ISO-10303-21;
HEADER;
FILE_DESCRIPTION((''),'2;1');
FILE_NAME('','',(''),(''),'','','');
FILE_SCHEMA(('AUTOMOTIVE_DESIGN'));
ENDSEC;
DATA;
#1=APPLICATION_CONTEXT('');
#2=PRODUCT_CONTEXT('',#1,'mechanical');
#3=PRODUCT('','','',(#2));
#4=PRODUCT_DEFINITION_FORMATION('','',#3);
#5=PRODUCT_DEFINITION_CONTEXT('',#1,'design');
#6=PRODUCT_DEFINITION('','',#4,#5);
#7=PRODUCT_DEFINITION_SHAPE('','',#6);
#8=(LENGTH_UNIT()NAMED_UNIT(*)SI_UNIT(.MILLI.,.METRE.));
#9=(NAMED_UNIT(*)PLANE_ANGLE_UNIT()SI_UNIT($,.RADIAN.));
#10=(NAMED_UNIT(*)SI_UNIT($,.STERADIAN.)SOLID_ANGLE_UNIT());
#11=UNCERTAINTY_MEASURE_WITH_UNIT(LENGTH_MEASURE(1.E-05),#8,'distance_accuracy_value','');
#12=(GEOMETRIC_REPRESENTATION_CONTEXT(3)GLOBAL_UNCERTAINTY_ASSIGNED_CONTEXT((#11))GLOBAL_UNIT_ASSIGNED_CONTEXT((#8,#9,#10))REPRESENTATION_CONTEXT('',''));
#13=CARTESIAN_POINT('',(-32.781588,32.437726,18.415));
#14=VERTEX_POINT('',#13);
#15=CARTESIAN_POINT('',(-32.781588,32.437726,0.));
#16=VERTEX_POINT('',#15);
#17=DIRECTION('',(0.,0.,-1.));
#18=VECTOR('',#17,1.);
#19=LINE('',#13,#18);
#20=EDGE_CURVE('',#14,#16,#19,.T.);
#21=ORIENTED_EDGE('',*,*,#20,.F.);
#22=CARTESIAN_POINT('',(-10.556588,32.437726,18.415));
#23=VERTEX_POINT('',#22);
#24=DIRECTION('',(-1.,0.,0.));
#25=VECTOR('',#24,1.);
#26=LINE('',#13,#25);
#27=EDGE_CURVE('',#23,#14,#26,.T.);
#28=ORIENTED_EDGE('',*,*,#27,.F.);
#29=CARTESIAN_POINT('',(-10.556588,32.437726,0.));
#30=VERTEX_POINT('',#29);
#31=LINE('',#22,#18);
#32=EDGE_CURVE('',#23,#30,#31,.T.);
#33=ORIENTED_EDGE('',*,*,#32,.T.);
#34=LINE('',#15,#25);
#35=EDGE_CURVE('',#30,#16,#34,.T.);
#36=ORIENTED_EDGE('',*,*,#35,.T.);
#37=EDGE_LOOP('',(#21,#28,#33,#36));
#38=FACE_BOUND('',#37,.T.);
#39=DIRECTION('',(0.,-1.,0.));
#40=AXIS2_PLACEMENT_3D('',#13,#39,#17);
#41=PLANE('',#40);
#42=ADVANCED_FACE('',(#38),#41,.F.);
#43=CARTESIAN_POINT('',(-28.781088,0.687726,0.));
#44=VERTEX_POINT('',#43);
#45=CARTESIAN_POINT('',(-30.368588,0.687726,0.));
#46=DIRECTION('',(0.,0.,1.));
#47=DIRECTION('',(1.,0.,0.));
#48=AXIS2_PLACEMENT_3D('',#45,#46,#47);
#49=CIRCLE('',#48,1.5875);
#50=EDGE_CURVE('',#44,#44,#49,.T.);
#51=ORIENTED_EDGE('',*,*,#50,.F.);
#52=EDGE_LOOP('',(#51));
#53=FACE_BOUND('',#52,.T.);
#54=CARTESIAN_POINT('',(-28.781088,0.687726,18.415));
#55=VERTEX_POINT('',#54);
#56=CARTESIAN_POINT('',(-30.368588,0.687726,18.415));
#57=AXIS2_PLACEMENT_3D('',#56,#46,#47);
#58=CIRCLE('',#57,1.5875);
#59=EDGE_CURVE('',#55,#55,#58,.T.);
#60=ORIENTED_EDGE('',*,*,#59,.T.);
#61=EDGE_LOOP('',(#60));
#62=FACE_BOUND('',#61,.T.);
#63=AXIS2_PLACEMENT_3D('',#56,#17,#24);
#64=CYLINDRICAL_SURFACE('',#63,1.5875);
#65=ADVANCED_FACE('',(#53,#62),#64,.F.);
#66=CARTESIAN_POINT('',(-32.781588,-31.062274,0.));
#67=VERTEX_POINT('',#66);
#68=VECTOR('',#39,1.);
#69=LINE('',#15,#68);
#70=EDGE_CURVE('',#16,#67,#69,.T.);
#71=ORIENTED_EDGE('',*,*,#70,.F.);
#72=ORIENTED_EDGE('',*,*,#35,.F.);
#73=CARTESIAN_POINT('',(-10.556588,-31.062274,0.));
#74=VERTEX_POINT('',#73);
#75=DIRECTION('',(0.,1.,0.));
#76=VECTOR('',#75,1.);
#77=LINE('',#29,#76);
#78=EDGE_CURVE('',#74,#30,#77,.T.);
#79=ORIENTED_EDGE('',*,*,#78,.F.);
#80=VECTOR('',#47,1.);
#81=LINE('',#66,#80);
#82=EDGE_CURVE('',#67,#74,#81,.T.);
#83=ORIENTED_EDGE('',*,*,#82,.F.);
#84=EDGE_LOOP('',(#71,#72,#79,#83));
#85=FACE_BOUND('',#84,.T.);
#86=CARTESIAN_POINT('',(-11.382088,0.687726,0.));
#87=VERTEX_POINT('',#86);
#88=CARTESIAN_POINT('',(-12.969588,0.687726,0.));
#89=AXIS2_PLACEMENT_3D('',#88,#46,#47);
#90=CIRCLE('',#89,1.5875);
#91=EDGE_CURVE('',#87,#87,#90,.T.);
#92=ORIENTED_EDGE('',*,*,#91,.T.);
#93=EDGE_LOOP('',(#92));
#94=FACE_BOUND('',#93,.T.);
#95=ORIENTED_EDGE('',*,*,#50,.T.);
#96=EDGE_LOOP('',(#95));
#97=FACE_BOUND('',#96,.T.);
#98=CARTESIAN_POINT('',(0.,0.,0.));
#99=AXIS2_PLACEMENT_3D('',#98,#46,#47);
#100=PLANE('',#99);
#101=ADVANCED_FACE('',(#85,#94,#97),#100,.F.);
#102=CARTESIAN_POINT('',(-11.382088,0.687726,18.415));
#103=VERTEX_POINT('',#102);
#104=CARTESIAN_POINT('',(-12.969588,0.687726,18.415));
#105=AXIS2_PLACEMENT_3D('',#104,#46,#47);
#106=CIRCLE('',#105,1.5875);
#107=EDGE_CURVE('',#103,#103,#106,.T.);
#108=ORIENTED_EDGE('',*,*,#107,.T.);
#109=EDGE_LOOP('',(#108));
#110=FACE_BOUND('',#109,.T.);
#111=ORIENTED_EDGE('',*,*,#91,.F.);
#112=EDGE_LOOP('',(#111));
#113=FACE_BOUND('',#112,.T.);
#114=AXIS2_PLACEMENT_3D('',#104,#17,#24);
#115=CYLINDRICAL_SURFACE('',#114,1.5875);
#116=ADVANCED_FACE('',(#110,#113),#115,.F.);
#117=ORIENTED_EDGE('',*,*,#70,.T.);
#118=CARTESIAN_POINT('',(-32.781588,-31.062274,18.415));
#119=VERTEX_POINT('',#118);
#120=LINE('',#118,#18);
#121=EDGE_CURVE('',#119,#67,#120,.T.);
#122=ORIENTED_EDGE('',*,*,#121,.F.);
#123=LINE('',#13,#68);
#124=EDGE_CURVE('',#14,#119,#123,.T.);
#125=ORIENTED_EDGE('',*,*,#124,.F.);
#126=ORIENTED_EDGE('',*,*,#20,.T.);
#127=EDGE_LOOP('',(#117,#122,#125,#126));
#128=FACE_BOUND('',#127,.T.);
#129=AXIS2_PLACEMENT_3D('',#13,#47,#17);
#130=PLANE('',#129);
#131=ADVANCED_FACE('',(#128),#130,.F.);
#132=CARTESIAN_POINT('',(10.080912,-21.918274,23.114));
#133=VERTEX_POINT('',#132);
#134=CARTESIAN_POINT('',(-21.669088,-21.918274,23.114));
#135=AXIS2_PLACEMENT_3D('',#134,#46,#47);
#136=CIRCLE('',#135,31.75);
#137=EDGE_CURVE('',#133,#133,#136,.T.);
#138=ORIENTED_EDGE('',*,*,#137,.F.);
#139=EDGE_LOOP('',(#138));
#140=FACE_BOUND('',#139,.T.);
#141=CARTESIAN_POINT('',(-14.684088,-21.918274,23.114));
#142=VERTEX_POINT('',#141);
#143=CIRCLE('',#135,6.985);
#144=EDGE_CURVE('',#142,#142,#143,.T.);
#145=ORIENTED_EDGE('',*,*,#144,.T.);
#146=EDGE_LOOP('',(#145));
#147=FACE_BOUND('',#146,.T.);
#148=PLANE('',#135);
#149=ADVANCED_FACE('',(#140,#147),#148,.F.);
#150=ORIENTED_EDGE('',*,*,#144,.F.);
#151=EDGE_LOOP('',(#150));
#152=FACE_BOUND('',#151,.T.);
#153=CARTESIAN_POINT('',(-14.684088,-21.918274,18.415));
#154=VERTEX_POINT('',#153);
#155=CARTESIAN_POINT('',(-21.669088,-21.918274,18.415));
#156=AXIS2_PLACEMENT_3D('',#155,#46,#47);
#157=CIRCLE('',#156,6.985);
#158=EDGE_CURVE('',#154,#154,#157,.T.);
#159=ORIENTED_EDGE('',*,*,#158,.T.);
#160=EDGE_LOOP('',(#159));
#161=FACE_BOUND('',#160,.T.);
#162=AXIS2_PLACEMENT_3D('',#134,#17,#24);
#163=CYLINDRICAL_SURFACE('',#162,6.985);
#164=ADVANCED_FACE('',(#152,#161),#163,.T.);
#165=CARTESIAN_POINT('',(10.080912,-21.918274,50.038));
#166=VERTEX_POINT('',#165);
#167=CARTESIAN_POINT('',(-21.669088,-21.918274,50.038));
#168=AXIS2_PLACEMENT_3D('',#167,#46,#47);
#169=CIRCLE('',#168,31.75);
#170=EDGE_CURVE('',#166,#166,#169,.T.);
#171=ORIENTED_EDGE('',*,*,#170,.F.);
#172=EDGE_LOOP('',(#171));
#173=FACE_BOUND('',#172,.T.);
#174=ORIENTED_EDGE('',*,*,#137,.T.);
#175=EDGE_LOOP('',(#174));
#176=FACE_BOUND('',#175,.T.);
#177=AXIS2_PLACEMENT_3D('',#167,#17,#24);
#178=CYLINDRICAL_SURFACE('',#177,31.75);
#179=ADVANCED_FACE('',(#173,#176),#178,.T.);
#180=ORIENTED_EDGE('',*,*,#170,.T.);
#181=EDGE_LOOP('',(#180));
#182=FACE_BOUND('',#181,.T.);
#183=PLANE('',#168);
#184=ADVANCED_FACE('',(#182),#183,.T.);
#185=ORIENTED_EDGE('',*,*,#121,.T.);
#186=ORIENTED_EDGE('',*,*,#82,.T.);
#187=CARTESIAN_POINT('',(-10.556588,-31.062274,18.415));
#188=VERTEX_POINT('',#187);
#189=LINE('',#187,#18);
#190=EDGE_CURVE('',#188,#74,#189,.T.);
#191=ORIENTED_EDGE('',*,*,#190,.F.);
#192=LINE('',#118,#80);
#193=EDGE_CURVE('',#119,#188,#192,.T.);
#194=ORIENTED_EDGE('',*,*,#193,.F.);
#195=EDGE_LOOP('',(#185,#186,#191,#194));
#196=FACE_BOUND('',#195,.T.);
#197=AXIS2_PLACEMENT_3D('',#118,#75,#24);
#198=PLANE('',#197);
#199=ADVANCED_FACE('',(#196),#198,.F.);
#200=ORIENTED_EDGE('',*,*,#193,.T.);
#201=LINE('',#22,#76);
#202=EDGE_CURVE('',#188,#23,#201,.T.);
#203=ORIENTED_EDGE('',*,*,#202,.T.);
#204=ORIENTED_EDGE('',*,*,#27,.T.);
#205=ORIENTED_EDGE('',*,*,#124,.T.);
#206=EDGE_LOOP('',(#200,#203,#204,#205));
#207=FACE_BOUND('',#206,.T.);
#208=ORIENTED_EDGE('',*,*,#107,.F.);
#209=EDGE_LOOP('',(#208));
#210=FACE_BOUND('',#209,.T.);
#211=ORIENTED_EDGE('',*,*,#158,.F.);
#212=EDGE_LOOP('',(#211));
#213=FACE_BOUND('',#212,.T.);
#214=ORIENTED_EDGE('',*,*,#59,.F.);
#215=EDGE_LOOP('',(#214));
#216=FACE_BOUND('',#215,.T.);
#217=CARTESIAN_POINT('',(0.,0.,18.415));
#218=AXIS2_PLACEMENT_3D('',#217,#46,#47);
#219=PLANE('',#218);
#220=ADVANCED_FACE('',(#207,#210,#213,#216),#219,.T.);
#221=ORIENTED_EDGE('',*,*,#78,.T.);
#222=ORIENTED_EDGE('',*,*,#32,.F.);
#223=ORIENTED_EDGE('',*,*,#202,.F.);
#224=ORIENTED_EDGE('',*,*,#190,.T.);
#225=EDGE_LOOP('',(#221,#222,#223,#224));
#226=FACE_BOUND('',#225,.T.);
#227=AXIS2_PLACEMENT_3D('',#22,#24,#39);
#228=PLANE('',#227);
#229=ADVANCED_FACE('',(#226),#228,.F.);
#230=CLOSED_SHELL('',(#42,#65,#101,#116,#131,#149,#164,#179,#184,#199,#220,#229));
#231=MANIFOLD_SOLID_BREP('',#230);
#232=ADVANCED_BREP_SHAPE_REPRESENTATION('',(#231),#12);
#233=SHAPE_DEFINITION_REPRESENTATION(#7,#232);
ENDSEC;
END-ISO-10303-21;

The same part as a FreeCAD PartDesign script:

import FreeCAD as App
import Part
import Sketcher

V = App.Vector
Q = App.Units.Quantity


def add_polygon(sketch, points):
    """Adds a closed chain of lines whose ends are joined by coincident constraints."""
    first, n = sketch.GeometryCount, len(points)
    for a, b in zip(points, points[1:] + points[:1]):
        sketch.addGeometry(Part.LineSegment(App.Vector(*a, 0), App.Vector(*b, 0)), False)
    for i in range(n):
        sketch.addConstraint(Sketcher.Constraint("Coincident", first + i, 2, first + (i + 1) % n, 1))

doc = App.newDocument("Part")
body = doc.addObject("PartDesign::Body", "Body")

# Sketch on XY plane
sketch1 = body.newObject("Sketcher::SketchObject", "Sketch")
sketch1.AttachmentSupport = (doc.getObject("XY_Plane"), [""])
sketch1.MapMode = "FlatFace"
add_polygon(sketch1, [(-32.8, 32.4), (-32.8, -31.1), (-10.6, -31.1), (-10.6, 32.4)])  # lines 0-3
sketch1.addGeometry(Part.Circle(V(-30.4, 0.7, 0), V(0, 0, 1), 1.6), False)  # 4
sketch1.addGeometry(Part.Circle(V(-13, 0.7, 0), V(0, 0, 1), 1.6), False)  # 5
sketch1.addConstraint(Sketcher.Constraint("Vertical", 0))
sketch1.addConstraint(Sketcher.Constraint("Horizontal", 1))
sketch1.addConstraint(Sketcher.Constraint("Vertical", 2))
sketch1.addConstraint(Sketcher.Constraint("Horizontal", 3))
sketch1.addConstraint(Sketcher.Constraint("Equal", 4, 5))
sketch1.addConstraint(Sketcher.Constraint("Horizontal", 4, 3, 5, 3))
sketch1.addConstraint(Sketcher.Constraint("Diameter", 4, Q("0.125 in")))
sketch1.addConstraint(Sketcher.Constraint("DistanceY", 0, 2, 0, 1, Q("2.5 in")))
sketch1.addConstraint(Sketcher.Constraint("DistanceX", 1, 1, 1, 2, Q("0.875 in")))
sketch1.addConstraint(Sketcher.Constraint("DistanceY", 0, 2, 4, 3, Q("1.25 in")))
sketch1.addConstraint(Sketcher.Constraint("DistanceX", 0, 2, 5, 3, Q("0.78 in")))
sketch1.addConstraint(Sketcher.Constraint("DistanceX", 4, 3, 1, 2, Q("0.78 in")))
sketch1.addConstraint(Sketcher.Constraint("DistanceX", 4, 3, -1, 1, Q("30.368588 mm")))
sketch1.addConstraint(Sketcher.Constraint("DistanceY", -1, 1, 4, 3, Q("0.687726 mm")))
pad1 = body.newObject("PartDesign::Pad", "Pad")
pad1.Profile = sketch1
pad1.Length = Q("0.725 in")

# Sketch on XY plane
sketch2 = body.newObject("Sketcher::SketchObject", "Sketch001")
sketch2.AttachmentSupport = (doc.getObject("XY_Plane"), [""])
sketch2.MapMode = "FlatFace"
sketch2.AttachmentOffset = App.Placement(V(0, 0, 0.725 * 25.4), App.Rotation())
sketch2.addGeometry(Part.Circle(V(-22, -22, 0), V(0, 0, 1), 7), False)
sketch2.addConstraint(Sketcher.Constraint("Diameter", 0, Q("0.55 in")))
sketch2.addConstraint(Sketcher.Constraint("DistanceX", 0, 3, -1, 1, Q("21.669088 mm")))
sketch2.addConstraint(Sketcher.Constraint("DistanceY", 0, 3, -1, 1, Q("21.918274 mm")))
pad2 = body.newObject("PartDesign::Pad", "Pad001")
pad2.Profile = sketch2
pad2.Length = Q("0.185 in")

# Sketch on XY plane
sketch3 = body.newObject("Sketcher::SketchObject", "Sketch002")
sketch3.AttachmentSupport = (doc.getObject("XY_Plane"), [""])
sketch3.MapMode = "FlatFace"
sketch3.AttachmentOffset = App.Placement(V(0, 0, 0.91 * 25.4), App.Rotation())
sketch3.addGeometry(Part.Circle(V(-22, -22, 0), V(0, 0, 1), 32), False)
sketch3.addConstraint(Sketcher.Constraint("Diameter", 0, Q("2.5 in")))
sketch3.addConstraint(Sketcher.Constraint("DistanceX", 0, 3, -1, 1, Q("21.669088 mm")))
sketch3.addConstraint(Sketcher.Constraint("DistanceY", 0, 3, -1, 1, Q("21.918274 mm")))
pad3 = body.newObject("PartDesign::Pad", "Pad002")
pad3.Profile = sketch3
pad3.Length = Q("1.06 in")

doc.recompute()
